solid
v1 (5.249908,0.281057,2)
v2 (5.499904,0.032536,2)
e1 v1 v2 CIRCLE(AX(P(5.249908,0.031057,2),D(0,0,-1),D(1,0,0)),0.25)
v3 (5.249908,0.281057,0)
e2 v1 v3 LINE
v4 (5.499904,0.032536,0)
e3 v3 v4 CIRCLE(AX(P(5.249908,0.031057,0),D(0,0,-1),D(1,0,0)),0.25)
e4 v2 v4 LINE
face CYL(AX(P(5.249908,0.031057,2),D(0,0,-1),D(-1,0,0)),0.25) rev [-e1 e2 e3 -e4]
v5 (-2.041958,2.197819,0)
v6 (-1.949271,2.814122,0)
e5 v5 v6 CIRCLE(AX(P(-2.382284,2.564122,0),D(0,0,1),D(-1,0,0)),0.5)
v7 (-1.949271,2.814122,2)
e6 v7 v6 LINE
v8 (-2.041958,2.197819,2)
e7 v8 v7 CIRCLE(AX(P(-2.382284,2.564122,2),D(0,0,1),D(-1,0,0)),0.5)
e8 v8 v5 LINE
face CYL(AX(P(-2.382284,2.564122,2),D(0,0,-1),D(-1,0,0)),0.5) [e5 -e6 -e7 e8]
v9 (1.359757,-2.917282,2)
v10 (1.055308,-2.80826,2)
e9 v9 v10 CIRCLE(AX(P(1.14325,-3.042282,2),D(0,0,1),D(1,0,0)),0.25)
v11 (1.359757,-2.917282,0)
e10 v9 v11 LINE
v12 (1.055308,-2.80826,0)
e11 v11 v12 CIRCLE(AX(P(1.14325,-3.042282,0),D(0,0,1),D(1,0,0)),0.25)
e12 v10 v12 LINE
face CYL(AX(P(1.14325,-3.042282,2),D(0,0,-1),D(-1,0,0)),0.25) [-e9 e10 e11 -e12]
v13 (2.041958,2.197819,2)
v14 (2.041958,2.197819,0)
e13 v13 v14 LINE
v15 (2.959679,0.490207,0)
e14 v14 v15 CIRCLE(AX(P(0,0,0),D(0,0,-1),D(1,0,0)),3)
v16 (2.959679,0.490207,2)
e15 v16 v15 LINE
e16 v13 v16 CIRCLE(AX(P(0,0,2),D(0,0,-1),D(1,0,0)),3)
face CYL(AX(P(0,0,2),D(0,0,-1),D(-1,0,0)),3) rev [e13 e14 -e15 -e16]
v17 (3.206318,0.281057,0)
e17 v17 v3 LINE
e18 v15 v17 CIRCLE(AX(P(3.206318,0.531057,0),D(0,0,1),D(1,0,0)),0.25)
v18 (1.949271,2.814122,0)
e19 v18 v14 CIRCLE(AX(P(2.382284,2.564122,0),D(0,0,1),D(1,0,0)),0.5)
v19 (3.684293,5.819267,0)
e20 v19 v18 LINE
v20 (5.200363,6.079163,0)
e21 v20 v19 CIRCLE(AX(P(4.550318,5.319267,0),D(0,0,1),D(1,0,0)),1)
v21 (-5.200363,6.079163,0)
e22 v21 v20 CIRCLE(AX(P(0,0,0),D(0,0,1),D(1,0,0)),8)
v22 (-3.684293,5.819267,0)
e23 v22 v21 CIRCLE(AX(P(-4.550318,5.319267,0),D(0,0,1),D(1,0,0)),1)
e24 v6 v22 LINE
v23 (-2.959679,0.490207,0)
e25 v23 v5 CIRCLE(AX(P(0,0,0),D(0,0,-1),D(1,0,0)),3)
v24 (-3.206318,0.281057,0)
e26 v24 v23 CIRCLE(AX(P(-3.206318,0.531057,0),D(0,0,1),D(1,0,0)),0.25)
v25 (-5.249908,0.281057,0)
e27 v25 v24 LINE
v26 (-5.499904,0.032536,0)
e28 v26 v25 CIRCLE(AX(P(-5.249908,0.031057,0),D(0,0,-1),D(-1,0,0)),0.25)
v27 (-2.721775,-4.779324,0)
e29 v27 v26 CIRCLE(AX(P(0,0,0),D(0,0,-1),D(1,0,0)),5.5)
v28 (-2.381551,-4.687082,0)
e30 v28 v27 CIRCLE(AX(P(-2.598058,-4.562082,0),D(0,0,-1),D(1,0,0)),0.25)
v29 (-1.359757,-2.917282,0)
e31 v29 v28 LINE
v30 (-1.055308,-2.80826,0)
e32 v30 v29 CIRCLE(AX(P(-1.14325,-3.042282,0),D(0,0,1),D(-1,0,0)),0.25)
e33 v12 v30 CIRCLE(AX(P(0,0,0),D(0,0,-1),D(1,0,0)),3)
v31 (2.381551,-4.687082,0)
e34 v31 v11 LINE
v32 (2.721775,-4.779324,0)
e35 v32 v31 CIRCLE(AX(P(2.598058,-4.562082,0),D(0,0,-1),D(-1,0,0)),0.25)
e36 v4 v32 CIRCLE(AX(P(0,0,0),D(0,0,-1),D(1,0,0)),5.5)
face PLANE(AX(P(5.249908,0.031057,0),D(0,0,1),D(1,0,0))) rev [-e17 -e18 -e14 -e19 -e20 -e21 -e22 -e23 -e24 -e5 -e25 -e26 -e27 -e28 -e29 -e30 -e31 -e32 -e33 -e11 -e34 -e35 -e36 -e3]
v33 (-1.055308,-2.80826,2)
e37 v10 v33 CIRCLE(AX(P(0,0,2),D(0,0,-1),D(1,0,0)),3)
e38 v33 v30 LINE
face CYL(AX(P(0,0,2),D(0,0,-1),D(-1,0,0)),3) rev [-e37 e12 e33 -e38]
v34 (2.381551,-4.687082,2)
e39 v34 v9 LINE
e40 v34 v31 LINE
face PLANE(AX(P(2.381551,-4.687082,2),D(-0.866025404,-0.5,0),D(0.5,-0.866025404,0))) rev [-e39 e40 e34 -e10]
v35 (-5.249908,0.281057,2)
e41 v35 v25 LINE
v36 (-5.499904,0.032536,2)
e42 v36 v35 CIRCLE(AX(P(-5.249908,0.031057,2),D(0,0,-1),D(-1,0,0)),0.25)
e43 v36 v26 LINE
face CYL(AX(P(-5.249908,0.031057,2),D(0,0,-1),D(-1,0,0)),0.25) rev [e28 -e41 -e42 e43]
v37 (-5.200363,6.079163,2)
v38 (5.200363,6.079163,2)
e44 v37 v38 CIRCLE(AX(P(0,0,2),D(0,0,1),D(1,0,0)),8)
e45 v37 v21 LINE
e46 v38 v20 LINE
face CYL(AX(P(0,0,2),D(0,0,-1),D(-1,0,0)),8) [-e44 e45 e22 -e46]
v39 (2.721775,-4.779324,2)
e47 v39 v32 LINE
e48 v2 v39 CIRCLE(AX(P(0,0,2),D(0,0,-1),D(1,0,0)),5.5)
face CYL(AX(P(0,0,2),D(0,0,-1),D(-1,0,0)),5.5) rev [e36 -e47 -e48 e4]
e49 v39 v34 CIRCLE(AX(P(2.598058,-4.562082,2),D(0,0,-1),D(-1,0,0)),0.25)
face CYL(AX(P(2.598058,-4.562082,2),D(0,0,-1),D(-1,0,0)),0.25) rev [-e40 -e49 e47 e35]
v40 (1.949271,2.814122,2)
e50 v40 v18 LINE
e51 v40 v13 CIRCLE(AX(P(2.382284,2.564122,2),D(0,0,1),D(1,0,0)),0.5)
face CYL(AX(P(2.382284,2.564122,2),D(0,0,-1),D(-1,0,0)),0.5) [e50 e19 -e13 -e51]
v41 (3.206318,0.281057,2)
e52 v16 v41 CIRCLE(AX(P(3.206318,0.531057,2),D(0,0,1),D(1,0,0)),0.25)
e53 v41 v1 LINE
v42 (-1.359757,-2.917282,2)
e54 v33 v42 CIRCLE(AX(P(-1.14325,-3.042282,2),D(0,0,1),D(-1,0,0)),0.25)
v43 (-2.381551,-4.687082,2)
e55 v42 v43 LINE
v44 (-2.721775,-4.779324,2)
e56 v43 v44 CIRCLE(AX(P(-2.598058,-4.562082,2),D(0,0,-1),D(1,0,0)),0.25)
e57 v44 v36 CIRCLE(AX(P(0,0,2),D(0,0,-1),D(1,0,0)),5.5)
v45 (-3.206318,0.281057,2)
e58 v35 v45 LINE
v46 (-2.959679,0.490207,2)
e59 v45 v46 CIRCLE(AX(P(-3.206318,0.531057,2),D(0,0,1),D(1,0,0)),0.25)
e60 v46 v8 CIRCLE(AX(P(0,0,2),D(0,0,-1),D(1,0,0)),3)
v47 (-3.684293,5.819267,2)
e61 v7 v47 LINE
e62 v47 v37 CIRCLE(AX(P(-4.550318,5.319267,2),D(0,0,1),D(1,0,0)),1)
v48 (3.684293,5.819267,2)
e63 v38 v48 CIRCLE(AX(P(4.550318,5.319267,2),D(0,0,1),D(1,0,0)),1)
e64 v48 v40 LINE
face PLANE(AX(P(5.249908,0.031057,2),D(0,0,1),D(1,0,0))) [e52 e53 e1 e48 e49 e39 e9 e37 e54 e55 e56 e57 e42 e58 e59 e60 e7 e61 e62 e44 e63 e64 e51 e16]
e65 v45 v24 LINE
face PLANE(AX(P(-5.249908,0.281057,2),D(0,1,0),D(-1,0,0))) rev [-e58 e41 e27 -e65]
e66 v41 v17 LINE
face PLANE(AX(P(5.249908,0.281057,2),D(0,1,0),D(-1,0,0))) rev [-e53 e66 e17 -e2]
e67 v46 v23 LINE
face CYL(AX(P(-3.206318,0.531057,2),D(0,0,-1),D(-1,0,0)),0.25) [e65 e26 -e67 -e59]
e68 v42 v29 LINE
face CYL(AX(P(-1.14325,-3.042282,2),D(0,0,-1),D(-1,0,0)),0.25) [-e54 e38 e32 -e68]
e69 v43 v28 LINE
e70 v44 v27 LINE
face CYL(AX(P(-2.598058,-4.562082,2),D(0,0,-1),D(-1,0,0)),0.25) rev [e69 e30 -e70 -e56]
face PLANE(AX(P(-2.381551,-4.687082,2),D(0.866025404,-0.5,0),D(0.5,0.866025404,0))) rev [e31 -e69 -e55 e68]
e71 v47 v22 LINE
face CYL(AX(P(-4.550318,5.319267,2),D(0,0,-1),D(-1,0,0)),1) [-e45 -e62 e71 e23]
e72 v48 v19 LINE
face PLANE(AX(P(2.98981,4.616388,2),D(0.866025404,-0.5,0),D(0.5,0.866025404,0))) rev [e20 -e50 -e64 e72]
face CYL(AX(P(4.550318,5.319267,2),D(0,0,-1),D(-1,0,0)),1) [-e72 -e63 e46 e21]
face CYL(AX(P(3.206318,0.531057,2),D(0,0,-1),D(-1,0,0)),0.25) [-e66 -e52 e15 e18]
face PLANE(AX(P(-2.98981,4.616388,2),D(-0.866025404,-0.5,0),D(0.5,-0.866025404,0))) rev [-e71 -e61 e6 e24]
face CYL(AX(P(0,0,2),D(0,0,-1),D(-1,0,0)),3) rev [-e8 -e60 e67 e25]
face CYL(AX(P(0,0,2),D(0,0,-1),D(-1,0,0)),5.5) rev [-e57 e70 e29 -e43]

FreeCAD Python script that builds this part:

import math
import FreeCAD as App
import Part
import Sketcher
Q = App.Units.Quantity

doc = App.newDocument("Part")
body = doc.addObject("PartDesign::Body", "Body")

# Sketch on XY plane
sketch1 = body.newObject("Sketcher::SketchObject", "Sketch")
sketch1.AttachmentSupport = (doc.getObject("XY_Plane"), [""])
sketch1.MapMode = "FlatFace"
sketch1.addGeometry([
    Part.LineSegment(App.Vector(2.38, -4.69, 0), App.Vector(1.36, -2.92, 0)),  # 0
    Part.ArcOfCircle(Part.Circle(App.Vector(1.14, -3.04, 0), App.Vector(0, 0, 1), 0.25), math.radians(30), math.radians(111)),  # 1
    Part.ArcOfCircle(Part.Circle(App.Vector(0, 0, 0), App.Vector(0, 0, 1), 3), math.radians(-111), math.radians(-69)),  # 2
    Part.ArcOfCircle(Part.Circle(App.Vector(-1.14, -3.04, 0), App.Vector(0, 0, 1), 0.25), math.radians(69), math.radians(150)),  # 3
    Part.LineSegment(App.Vector(-1.36, -2.92, 0), App.Vector(-2.38, -4.69, 0)),  # 4
    Part.ArcOfCircle(Part.Circle(App.Vector(-2.6, -4.56, 0), App.Vector(0, 0, 1), 0.25), math.radians(-120), math.radians(-30)),  # 5
    Part.ArcOfCircle(Part.Circle(App.Vector(0, 0, 0), App.Vector(0, 0, 1), 5.5), math.radians(180), math.radians(240)),  # 6
    Part.ArcOfCircle(Part.Circle(App.Vector(-5.25, 0.03, 0), App.Vector(0, 0, 1), 0.25), math.radians(90), math.radians(180)),  # 7
    Part.LineSegment(App.Vector(-5.25, 0.28, 0), App.Vector(-3.21, 0.28, 0)),  # 8
    Part.ArcOfCircle(Part.Circle(App.Vector(-3.21, 0.53, 0), App.Vector(0, 0, 1), 0.25), math.radians(-90), math.radians(-9)),  # 9
    Part.ArcOfCircle(Part.Circle(App.Vector(0, 0, 0), App.Vector(0, 0, 1), 3), math.radians(133), math.radians(171)),  # 10
    Part.ArcOfCircle(Part.Circle(App.Vector(-2.38, 2.56, 0), App.Vector(0, 0, 1), 0.5), math.radians(-47), math.radians(30)),  # 11
    Part.LineSegment(App.Vector(-1.95, 2.81, 0), App.Vector(-2.99, 4.62, 0)),  # 12
    Part.LineSegment(App.Vector(-2.99, 4.62, 0), App.Vector(-3.68, 5.82, 0)),  # 13
    Part.ArcOfCircle(Part.Circle(App.Vector(-4.55, 5.32, 0), App.Vector(0, 0, 1), 1), math.radians(30), math.radians(131)),  # 14
    Part.ArcOfCircle(Part.Circle(App.Vector(0, 0, 0), App.Vector(0, 0, 1), 8), math.radians(131), math.radians(409)),  # 15
    Part.ArcOfCircle(Part.Circle(App.Vector(4.55, 5.32, 0), App.Vector(0, 0, 1), 1), math.radians(49), math.radians(150)),  # 16
    Part.LineSegment(App.Vector(3.68, 5.82, 0), App.Vector(2.99, 4.62, 0)),  # 17
    Part.LineSegment(App.Vector(2.99, 4.62, 0), App.Vector(1.95, 2.81, 0)),  # 18
    Part.ArcOfCircle(Part.Circle(App.Vector(2.38, 2.56, 0), App.Vector(0, 0, 1), 0.5), math.radians(150), math.radians(227)),  # 19
    Part.ArcOfCircle(Part.Circle(App.Vector(0, 0, 0), App.Vector(0, 0, 1), 3), math.radians(9), math.radians(47)),  # 20
    Part.ArcOfCircle(Part.Circle(App.Vector(3.21, 0.53, 0), App.Vector(0, 0, 1), 0.25), math.radians(-171), math.radians(-90)),  # 21
    Part.LineSegment(App.Vector(3.21, 0.28, 0), App.Vector(5.25, 0.28, 0)),  # 22
    Part.ArcOfCircle(Part.Circle(App.Vector(5.25, 0.03, 0), App.Vector(0, 0, 1), 0.25), math.radians(0), math.radians(90)),  # 23
    Part.ArcOfCircle(Part.Circle(App.Vector(0, 0, 0), App.Vector(0, 0, 1), 5.5), math.radians(-60), math.radians(0)),  # 24
    Part.ArcOfCircle(Part.Circle(App.Vector(2.6, -4.56, 0), App.Vector(0, 0, 1), 0.25), math.radians(-150), math.radians(-60)),  # 25
], False)
sketch1.addConstraint([
    Sketcher.Constraint("Tangent", 0, 2, 1, 1),
    Sketcher.Constraint("Tangent", 1, 2, 2, 2),
    Sketcher.Constraint("Tangent", 2, 1, 3, 1),
    Sketcher.Constraint("Tangent", 3, 2, 4, 1),
    Sketcher.Constraint("Tangent", 4, 2, 5, 2),
    Sketcher.Constraint("Tangent", 5, 1, 6, 2),
    Sketcher.Constraint("Tangent", 6, 1, 7, 2),
    Sketcher.Constraint("Tangent", 7, 1, 8, 1),
    Sketcher.Constraint("Tangent", 8, 2, 9, 1),
    Sketcher.Constraint("Tangent", 9, 2, 10, 2),
    Sketcher.Constraint("Tangent", 10, 1, 11, 1),
    Sketcher.Constraint("Tangent", 11, 2, 12, 1),
    Sketcher.Constraint("Coincident", 12, 2, 13, 1),
    Sketcher.Constraint("Tangent", 13, 2, 14, 1),
    Sketcher.Constraint("Tangent", 14, 2, 15, 1),
    Sketcher.Constraint("Tangent", 15, 2, 16, 1),
    Sketcher.Constraint("Tangent", 16, 2, 17, 1),
    Sketcher.Constraint("Coincident", 17, 2, 18, 1),
    Sketcher.Constraint("Tangent", 18, 2, 19, 1),
    Sketcher.Constraint("Tangent", 19, 2, 20, 2),
    Sketcher.Constraint("Tangent", 20, 1, 21, 1),
    Sketcher.Constraint("Tangent", 21, 2, 22, 1),
    Sketcher.Constraint("Tangent", 22, 2, 23, 2),
    Sketcher.Constraint("Tangent", 23, 1, 24, 2),
    Sketcher.Constraint("Tangent", 24, 1, 25, 2),
    Sketcher.Constraint("Tangent", 25, 1, 0, 1),
    Sketcher.Constraint("Horizontal", 8),
    Sketcher.Constraint("Horizontal", 22),
    Sketcher.Constraint("Coincident", 2, 3, -1, 1),
    Sketcher.Constraint("Coincident", 6, 3, -1, 1),
    Sketcher.Constraint("Coincident", 10, 3, -1, 1),
    Sketcher.Constraint("Coincident", 15, 3, -1, 1),
    Sketcher.Constraint("Coincident", 20, 3, -1, 1),
    Sketcher.Constraint("Coincident", 24, 3, -1, 1),
    Sketcher.Constraint("Equal", 1, 3),
    Sketcher.Constraint("Equal", 3, 5),
    Sketcher.Constraint("Equal", 5, 7),
    Sketcher.Constraint("Equal", 7, 9),
    Sketcher.Constraint("Equal", 2, 10),
    Sketcher.Constraint("Equal", 14, 16),
    Sketcher.Constraint("Equal", 11, 19),
    Sketcher.Constraint("Equal", 10, 20),
    Sketcher.Constraint("Equal", 9, 21),
    Sketcher.Constraint("Equal", 21, 23),
    Sketcher.Constraint("Equal", 6, 24),
    Sketcher.Constraint("Equal", 23, 25),
    Sketcher.Constraint("Symmetric", 0, 2, 3, 2, -2),
    Sketcher.Constraint("Symmetric", 13, 2, 16, 2, -2),
    Sketcher.Constraint("Parallel", 0, 12),
    Sketcher.Constraint("Parallel", 12, 13),
    Sketcher.Constraint("Parallel", 17, 18),
    Sketcher.Constraint("Horizontal", 9, 3, 21, 3),
    Sketcher.Constraint("Horizontal", 12, 2, 17, 2),
    Sketcher.Constraint("Radius", 2, 3.0),
    Sketcher.Constraint("Radius", 14, 1.0),
    Sketcher.Constraint("Radius", 15, 8.0),
    Sketcher.Constraint("Radius", 6, 5.5),
    Sketcher.Constraint("Radius", 11, 0.5),
    Sketcher.Constraint("Angle", 0, Q("120 deg")),
    Sketcher.Constraint("Radius", 1, 0.25),
    Sketcher.Constraint("DistanceX", 14, 3, 9, 3, 1.344),
    Sketcher.Constraint("DistanceX", 8, 1, 8, 2, 2.04359),
    Sketcher.Constraint("DistanceX", 3, 3, 1, 3, 2.2865),
    Sketcher.Constraint("DistanceX", 12, 2, -1, 1, 2.98981),
])
pad1 = body.newObject("PartDesign::Pad", "Pad")
pad1.Profile = sketch1
pad1.Length = 2

doc.recompute()
